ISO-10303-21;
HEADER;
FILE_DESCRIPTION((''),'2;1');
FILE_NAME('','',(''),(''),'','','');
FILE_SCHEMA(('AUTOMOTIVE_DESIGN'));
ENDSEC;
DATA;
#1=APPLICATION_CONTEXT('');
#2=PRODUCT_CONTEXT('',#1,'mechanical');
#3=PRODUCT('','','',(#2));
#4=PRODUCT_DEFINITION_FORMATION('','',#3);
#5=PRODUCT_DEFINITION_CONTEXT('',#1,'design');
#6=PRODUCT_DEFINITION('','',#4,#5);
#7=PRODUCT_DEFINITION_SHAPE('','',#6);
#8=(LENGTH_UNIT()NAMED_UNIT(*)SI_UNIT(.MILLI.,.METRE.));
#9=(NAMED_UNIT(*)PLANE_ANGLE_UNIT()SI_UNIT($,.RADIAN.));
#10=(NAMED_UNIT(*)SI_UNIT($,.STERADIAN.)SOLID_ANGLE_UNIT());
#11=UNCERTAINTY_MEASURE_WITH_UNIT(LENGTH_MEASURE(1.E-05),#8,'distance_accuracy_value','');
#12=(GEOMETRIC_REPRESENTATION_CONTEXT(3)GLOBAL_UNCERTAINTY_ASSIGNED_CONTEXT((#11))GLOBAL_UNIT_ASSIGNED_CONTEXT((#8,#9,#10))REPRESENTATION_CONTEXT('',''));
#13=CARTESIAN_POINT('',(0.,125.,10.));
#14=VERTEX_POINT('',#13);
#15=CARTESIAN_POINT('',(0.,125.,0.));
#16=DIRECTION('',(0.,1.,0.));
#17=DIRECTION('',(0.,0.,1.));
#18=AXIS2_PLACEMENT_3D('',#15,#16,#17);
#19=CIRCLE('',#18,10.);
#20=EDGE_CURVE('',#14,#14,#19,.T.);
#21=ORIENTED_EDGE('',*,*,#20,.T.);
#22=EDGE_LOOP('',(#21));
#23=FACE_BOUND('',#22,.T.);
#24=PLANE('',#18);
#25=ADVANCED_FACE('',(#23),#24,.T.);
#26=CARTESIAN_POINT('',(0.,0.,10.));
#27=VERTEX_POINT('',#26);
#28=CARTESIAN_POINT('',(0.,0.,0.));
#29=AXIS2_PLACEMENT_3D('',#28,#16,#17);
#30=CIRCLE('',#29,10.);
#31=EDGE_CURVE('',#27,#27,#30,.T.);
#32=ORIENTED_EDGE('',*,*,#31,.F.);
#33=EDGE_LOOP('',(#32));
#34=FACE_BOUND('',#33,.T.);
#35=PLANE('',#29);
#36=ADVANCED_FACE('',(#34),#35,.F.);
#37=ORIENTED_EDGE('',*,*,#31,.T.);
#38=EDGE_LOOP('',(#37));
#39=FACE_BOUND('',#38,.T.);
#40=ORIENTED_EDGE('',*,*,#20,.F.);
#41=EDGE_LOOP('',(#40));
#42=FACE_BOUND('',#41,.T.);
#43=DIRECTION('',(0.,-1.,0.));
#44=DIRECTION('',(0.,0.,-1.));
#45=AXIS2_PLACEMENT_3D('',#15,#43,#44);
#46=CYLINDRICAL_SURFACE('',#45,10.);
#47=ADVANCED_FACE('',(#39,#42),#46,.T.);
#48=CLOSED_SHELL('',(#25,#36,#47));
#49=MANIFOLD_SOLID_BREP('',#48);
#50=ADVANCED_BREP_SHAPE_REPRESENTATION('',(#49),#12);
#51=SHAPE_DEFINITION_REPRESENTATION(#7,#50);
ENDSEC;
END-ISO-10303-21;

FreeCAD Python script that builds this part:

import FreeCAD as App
import Part
import Sketcher

doc = App.newDocument("Part")
body = doc.addObject("PartDesign::Body", "Body")

sketch1 = body.newObject("Sketcher::SketchObject", "Sketch")
sketch1.AttachmentSupport = (doc.getObject("XZ_Plane"), [""])
sketch1.MapMode = "FlatFace"
sketch1.addGeometry(Part.Circle(App.Vector(0, 0, 0), App.Vector(0, 0, 1), 10), False)
sketch1.addConstraint(Sketcher.Constraint("Coincident", 0, 3, -1, 1))
sketch1.addConstraint(Sketcher.Constraint("Diameter", 0, 20.0))
pad1 = body.newObject("PartDesign::Pad", "Pad")
pad1.Profile = sketch1
pad1.Length = 125
pad1.Reversed = True

doc.recompute()
